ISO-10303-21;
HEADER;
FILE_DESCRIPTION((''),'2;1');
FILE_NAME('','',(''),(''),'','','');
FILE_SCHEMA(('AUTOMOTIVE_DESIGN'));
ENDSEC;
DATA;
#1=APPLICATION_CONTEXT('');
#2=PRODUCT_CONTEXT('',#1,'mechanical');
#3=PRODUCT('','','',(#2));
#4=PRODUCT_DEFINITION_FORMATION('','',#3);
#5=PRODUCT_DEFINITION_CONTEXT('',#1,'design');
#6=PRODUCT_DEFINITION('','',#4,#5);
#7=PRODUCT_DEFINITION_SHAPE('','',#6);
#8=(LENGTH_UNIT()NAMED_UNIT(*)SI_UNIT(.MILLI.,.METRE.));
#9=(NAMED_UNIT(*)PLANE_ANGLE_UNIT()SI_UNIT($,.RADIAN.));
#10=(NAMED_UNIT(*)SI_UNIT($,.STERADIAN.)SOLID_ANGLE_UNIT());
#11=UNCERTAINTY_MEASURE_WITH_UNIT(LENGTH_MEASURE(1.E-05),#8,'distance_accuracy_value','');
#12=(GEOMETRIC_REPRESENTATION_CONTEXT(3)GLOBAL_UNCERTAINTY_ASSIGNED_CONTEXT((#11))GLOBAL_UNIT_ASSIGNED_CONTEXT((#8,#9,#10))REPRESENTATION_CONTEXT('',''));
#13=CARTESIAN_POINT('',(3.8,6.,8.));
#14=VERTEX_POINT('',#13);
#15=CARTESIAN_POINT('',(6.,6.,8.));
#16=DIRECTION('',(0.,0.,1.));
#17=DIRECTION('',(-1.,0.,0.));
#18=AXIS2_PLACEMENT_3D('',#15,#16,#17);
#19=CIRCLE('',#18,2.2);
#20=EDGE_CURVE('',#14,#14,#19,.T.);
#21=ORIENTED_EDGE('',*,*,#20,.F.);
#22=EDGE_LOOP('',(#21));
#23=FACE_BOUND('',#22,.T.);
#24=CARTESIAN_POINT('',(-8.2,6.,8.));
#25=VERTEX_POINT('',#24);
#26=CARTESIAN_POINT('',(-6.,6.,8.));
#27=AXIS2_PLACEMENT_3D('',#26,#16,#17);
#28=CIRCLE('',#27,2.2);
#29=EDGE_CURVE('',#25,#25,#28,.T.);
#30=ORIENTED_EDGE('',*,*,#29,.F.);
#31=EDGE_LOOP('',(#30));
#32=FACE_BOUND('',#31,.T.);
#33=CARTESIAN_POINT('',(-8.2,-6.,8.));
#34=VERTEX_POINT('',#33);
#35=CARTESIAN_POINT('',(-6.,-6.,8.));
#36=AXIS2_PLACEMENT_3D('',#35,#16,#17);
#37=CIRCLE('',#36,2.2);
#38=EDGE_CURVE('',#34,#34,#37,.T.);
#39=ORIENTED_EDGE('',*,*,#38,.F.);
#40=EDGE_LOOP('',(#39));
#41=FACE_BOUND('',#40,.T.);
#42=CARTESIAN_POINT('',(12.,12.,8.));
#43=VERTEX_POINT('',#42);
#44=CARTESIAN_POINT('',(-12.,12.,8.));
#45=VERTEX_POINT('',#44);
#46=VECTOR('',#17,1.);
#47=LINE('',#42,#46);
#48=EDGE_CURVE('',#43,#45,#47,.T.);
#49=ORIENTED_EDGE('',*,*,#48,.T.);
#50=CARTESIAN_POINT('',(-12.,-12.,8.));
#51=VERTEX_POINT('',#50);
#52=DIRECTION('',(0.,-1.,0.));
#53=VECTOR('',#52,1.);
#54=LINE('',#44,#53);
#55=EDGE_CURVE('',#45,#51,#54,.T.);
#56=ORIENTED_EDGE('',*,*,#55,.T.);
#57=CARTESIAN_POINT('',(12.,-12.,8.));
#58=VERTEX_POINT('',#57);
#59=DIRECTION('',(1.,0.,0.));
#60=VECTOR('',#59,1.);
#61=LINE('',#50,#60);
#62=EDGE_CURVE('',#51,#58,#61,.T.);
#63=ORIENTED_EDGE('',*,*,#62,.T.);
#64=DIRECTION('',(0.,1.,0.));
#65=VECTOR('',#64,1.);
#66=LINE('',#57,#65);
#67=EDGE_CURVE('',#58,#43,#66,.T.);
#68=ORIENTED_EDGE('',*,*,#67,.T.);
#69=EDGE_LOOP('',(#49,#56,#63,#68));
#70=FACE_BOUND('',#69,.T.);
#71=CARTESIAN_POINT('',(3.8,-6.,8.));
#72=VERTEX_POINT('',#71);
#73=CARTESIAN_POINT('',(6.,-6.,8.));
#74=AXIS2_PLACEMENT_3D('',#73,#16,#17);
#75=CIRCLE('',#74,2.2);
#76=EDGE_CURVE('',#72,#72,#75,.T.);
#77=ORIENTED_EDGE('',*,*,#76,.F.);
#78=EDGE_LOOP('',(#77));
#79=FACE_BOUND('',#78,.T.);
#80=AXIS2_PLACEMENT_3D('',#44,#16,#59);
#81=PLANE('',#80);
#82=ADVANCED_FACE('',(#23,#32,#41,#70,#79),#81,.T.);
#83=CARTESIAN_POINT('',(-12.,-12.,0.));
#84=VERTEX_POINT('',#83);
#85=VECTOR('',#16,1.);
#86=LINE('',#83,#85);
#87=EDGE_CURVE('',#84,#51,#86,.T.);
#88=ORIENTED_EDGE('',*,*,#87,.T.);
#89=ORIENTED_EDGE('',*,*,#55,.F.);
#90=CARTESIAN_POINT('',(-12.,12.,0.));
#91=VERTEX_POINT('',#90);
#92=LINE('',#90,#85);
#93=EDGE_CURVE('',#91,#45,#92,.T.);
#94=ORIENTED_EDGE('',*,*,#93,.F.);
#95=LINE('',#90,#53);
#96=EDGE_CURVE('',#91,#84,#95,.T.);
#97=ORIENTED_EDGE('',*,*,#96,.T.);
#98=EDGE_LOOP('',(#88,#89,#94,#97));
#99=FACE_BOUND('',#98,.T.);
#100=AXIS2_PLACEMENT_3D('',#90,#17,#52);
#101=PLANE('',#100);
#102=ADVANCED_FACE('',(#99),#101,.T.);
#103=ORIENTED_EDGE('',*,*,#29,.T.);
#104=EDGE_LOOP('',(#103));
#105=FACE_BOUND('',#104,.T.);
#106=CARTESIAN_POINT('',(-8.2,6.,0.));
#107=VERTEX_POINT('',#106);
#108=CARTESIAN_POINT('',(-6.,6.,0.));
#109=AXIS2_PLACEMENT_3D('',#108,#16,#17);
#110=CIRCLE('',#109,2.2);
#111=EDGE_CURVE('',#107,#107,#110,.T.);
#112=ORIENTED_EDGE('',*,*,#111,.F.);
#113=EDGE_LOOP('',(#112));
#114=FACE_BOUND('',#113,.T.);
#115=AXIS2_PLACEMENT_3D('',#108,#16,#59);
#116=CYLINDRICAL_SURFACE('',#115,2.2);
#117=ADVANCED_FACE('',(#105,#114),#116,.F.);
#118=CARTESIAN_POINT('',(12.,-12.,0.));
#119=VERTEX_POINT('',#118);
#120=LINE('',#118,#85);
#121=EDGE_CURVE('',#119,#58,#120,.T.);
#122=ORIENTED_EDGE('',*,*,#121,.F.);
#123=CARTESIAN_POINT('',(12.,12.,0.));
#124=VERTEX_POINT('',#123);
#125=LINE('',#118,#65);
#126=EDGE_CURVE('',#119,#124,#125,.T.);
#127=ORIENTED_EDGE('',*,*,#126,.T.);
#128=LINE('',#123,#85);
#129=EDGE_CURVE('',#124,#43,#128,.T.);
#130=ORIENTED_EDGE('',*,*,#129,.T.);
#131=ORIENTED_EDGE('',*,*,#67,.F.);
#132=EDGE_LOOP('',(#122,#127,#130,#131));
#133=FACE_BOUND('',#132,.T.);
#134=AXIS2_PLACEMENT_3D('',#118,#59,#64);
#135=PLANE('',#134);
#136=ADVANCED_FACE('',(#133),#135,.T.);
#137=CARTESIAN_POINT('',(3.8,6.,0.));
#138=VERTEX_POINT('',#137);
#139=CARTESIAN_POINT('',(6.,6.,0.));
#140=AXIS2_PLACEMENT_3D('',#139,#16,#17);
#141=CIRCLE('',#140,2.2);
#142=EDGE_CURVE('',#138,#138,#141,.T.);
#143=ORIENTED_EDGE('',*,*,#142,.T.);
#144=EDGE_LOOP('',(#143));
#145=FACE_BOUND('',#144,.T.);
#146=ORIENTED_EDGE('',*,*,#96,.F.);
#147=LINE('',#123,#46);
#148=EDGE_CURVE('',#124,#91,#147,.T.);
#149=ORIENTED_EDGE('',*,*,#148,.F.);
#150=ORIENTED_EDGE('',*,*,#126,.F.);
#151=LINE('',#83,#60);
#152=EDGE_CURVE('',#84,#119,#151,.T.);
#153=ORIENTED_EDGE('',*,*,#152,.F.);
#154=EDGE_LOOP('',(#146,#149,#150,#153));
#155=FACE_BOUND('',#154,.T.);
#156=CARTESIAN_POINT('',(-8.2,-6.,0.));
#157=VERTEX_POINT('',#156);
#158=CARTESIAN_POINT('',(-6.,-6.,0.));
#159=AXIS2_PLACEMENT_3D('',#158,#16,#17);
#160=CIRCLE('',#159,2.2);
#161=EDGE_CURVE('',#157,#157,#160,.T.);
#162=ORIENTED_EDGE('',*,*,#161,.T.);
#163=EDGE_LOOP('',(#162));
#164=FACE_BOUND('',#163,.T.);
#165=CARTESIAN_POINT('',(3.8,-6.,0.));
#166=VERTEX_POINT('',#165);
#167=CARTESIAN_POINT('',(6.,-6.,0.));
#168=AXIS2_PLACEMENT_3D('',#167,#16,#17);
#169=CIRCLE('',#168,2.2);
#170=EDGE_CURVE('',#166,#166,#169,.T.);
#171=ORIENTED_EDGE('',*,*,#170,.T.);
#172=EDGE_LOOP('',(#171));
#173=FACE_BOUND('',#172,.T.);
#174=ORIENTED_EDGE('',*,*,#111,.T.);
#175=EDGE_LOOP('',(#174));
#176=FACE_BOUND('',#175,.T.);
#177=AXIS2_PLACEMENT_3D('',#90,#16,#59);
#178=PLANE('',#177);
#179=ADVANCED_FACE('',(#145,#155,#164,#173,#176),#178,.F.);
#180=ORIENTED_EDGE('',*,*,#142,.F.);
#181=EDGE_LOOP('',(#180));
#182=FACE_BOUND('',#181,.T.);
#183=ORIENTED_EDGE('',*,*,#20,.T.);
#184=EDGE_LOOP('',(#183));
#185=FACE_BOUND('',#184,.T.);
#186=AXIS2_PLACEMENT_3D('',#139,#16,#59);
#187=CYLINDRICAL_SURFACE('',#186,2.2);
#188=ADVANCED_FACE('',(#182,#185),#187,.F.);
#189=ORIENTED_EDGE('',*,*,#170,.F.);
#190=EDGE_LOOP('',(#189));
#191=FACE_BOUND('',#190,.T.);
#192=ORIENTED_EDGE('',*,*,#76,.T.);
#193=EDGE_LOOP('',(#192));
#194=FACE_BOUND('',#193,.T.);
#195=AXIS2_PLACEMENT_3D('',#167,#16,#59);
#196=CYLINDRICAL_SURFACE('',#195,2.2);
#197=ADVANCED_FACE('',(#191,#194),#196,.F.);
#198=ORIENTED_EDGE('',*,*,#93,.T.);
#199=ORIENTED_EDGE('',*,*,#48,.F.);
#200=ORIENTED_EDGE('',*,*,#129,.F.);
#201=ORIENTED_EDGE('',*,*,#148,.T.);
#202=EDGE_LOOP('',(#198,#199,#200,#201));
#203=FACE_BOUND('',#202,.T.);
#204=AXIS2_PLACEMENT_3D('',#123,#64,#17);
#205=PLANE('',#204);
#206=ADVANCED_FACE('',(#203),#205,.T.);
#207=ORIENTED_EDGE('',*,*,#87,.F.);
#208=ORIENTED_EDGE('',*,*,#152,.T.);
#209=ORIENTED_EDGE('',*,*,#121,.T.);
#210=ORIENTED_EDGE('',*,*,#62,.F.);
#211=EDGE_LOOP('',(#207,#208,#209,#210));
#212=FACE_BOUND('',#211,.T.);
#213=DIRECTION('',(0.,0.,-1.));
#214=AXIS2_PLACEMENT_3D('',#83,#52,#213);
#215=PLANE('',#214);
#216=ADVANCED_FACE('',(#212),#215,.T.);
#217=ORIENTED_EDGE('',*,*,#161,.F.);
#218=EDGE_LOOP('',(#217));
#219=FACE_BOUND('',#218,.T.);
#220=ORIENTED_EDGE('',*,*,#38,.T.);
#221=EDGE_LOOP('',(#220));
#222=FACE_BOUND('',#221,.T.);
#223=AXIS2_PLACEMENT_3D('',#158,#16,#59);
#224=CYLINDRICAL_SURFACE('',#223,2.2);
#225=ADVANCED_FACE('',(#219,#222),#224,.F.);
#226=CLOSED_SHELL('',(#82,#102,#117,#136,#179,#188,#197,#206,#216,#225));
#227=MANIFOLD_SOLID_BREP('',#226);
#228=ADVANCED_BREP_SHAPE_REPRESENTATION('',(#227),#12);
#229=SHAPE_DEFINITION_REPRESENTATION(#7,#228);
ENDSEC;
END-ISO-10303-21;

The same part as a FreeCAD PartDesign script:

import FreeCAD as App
import Part
import Sketcher
Q = App.Units.Quantity

doc = App.newDocument("Part")
body = doc.addObject("PartDesign::Body", "Body")

# Sketch on XY plane
sketch1 = body.newObject("Sketcher::SketchObject", "Sketch")
sketch1.AttachmentSupport = (doc.getObject("XY_Plane"), [""])
sketch1.MapMode = "FlatFace"
sketch1.AttachmentOffset = App.Placement(App.Vector(0, 0, 8), App.Rotation())
sketch1.addGeometry([
    Part.LineSegment(App.Vector(-12, 12, 0), App.Vector(-12, -12, 0)),  # 0
    Part.LineSegment(App.Vector(-12, -12, 0), App.Vector(12, -12, 0)),  # 1
    Part.LineSegment(App.Vector(12, -12, 0), App.Vector(12, 12, 0)),  # 2
    Part.LineSegment(App.Vector(12, 12, 0), App.Vector(-12, 12, 0)),  # 3
    Part.Circle(App.Vector(-6, -6, 0), App.Vector(0, 0, 1), 2.2),  # 4
    Part.Circle(App.Vector(6, -6, 0), App.Vector(0, 0, 1), 2.2),  # 5
    Part.Circle(App.Vector(-6, 6, 0), App.Vector(0, 0, 1), 2.2),  # 6
    Part.Circle(App.Vector(6, 6, 0), App.Vector(0, 0, 1), 2.2),  # 7
], False)
sketch1.addConstraint([
    Sketcher.Constraint("Coincident", 0, 2, 1, 1),
    Sketcher.Constraint("Coincident", 1, 2, 2, 1),
    Sketcher.Constraint("Coincident", 2, 2, 3, 1),
    Sketcher.Constraint("Coincident", 3, 2, 0, 1),
    Sketcher.Constraint("Vertical", 0),
    Sketcher.Constraint("Horizontal", 1),
    Sketcher.Constraint("Vertical", 2),
    Sketcher.Constraint("Horizontal", 3),
    Sketcher.Constraint("Equal", 4, 5),
    Sketcher.Constraint("Equal", 5, 6),
    Sketcher.Constraint("Equal", 6, 7),
    Sketcher.Constraint("Symmetric", 5, 3, 6, 3, -1, 1),
    Sketcher.Constraint("Symmetric", 4, 3, 7, 3, -1, 1),
    Sketcher.Constraint("Symmetric", 0, 2, 2, 2, -1, 1),
    Sketcher.Constraint("Symmetric", 4, 3, 5, 3, -2),
    Sketcher.Constraint("Equal", 3, 0),
    Sketcher.Constraint("Diameter", 4, Q("4.4 mm")),
    Sketcher.Constraint("DistanceX", 1, 1, 1, 2, Q("24 mm")),
    Sketcher.Constraint("DistanceX", 4, 3, -1, 1, Q("6 mm")),
    Sketcher.Constraint("DistanceY", 4, 3, -1, 1, Q("6 mm")),
])
pad1 = body.newObject("PartDesign::Pad", "Pad")
pad1.Profile = sketch1
pad1.Length = 8
pad1.Reversed = True

doc.recompute()
